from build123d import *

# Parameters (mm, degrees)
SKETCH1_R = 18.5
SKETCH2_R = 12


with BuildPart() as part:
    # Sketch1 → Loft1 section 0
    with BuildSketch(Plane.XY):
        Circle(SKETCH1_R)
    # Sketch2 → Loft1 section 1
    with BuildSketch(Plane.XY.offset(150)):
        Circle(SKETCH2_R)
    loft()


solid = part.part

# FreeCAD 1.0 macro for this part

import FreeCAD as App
import Part
import Sketcher

V = App.Vector

doc = App.newDocument("Part")
body = doc.addObject("PartDesign::Body", "Body")

# Sketch on XY plane
sketch1 = body.newObject("Sketcher::SketchObject", "Sketch")
sketch1.AttachmentSupport = (doc.getObject("XY_Plane"), [""])
sketch1.MapMode = "FlatFace"
sketch1.addGeometry(Part.Circle(V(0, 0, 0), V(0, 0, 1), 18), False)
sketch1.addConstraint(Sketcher.Constraint("Coincident", 0, 3, -1, 1))
sketch1.addConstraint(Sketcher.Constraint("Diameter", 0, 37.0))

# Sketch on XY plane
sketch2 = body.newObject("Sketcher::SketchObject", "Sketch001")
sketch2.AttachmentSupport = (doc.getObject("XY_Plane"), [""])
sketch2.MapMode = "FlatFace"
sketch2.AttachmentOffset = App.Placement(V(0, 0, 150), App.Rotation())
sketch2.addGeometry(Part.Circle(V(0, 0, 0), V(0, 0, 1), 12), False)
sketch2.addConstraint(Sketcher.Constraint("Coincident", 0, 3, -1, 1))
sketch2.addConstraint(Sketcher.Constraint("Diameter", 0, 24.0))

additiveloft = body.newObject("PartDesign::AdditiveLoft", "AdditiveLoft")
additiveloft.Profile = sketch1
additiveloft.Sections = [sketch2]

doc.recompute()
